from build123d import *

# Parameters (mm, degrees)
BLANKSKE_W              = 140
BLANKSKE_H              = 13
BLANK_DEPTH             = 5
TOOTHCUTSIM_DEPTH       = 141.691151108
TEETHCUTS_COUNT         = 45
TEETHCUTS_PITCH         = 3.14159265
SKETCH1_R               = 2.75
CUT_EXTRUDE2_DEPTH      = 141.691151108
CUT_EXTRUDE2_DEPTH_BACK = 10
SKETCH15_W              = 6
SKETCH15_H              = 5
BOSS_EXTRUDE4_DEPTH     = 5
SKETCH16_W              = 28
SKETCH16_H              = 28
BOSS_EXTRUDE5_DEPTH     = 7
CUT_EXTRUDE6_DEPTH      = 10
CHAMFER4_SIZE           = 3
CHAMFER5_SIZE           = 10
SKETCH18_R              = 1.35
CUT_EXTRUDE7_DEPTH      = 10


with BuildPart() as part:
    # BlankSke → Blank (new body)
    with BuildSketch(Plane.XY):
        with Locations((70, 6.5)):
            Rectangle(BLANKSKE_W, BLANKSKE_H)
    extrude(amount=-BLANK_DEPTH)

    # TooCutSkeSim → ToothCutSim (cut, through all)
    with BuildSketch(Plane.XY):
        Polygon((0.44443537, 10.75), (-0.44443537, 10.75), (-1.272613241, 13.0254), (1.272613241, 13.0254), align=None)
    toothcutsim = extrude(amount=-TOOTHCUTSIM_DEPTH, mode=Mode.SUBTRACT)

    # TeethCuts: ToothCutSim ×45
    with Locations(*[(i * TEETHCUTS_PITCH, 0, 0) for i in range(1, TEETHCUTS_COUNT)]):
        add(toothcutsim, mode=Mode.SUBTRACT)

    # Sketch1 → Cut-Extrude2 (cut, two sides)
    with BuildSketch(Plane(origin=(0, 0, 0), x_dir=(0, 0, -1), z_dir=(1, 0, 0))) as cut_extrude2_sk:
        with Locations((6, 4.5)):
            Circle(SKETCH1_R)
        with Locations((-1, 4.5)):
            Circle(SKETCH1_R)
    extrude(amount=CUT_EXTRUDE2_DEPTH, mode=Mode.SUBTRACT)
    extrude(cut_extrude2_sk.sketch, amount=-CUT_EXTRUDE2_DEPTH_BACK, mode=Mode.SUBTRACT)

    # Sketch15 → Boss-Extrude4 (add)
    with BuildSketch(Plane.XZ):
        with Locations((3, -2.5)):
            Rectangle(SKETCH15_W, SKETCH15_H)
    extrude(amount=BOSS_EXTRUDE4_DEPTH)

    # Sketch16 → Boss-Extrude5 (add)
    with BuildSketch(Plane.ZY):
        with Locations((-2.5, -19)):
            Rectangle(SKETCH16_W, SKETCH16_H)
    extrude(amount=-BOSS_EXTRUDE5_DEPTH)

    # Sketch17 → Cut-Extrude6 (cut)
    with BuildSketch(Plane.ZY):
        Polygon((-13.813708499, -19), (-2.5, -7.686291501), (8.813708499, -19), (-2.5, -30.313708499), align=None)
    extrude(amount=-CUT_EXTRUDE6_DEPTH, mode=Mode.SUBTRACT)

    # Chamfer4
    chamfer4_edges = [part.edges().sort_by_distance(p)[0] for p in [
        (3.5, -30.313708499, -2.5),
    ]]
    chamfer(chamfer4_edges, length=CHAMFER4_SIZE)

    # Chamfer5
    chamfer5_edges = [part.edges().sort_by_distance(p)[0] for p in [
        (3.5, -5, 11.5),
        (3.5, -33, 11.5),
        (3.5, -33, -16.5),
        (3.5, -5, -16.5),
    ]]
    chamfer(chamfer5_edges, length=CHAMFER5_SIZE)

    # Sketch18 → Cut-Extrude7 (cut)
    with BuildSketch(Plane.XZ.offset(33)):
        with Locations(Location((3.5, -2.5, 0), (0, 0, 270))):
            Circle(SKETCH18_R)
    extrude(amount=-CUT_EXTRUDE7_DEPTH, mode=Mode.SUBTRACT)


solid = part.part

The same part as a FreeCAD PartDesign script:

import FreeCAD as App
import Part
import Sketcher
from FreeCAD import Vector
Q = App.Units.Quantity


def edges_at(feature, points):
    """Names of the edges that pass closest to the given points."""
    edges = feature.Shape.Edges
    near = lambda p: min(range(len(edges)), key=lambda i: edges[i].distToShape(Part.Vertex(*p))[0])
    return sorted({f"Edge{near(p) + 1}" for p in points})


def add_polygon(sketch, points):
    """Adds a closed chain of lines whose ends are joined by coincident constraints."""
    first, n = sketch.GeometryCount, len(points)
    for a, b in zip(points, points[1:] + points[:1]):
        sketch.addGeometry(Part.LineSegment(App.Vector(*a, 0), App.Vector(*b, 0)), False)
    for i in range(n):
        sketch.addConstraint(Sketcher.Constraint("Coincident", first + i, 2, first + (i + 1) % n, 1))

doc = App.newDocument("Part")
body = doc.addObject("PartDesign::Body", "Body")

# Sketch on XY plane
sketch1 = body.newObject("Sketcher::SketchObject", "Sketch")
sketch1.AttachmentSupport = (doc.getObject("XY_Plane"), [""])
sketch1.MapMode = "FlatFace"
add_polygon(sketch1, [(0, 13), (0, 0), (140, 0), (140, 13)])  # lines 0-3
sketch1.addConstraint(Sketcher.Constraint("Vertical", 0))
sketch1.addConstraint(Sketcher.Constraint("Horizontal", 1))
sketch1.addConstraint(Sketcher.Constraint("Vertical", 2))
sketch1.addConstraint(Sketcher.Constraint("Horizontal", 3))
sketch1.addConstraint(Sketcher.Constraint("Coincident", 0, 2, -1, 1))
sketch1.addConstraint(Sketcher.Constraint("DistanceX", 1, 1, 1, 2, 140.0))
sketch1.addConstraint(Sketcher.Constraint("DistanceY", 0, 2, 0, 1, 13.0))
pad1 = body.newObject("PartDesign::Pad", "Pad")
pad1.Profile = sketch1
pad1.Length = 5
pad1.Reversed = True

# Sketch on XY plane
sketch2 = body.newObject("Sketcher::SketchObject", "Sketch001")
sketch2.AttachmentSupport = (doc.getObject("XY_Plane"), [""])
sketch2.MapMode = "FlatFace"
add_polygon(sketch2, [(-0.4, 10.8), (0.4, 10.8), (1.3, 13), (-1.3, 13)])  # lines 0-3
sketch2.addConstraint(Sketcher.Constraint("Horizontal", 0))
sketch2.addConstraint(Sketcher.Constraint("Horizontal", 2))
sketch2.addConstraint(Sketcher.Constraint("Equal", 1, 3))
sketch2.addConstraint(Sketcher.Constraint("Angle", 1, Q("70 deg")))
sketch2.addConstraint(Sketcher.Constraint("DistanceY", -1, 1, 0, 2, 10.75))
sketch2.addConstraint(Sketcher.Constraint("DistanceX", 0, 1, 0, 2, 0.888871))
sketch2.addConstraint(Sketcher.Constraint("DistanceY", -1, 1, 1, 2, 13.0254))
sketch2.addConstraint(Sketcher.Constraint("DistanceX", -1, 1, 0, 2, 0.444435))
pocket1 = body.newObject("PartDesign::Pocket", "Pocket")
pocket1.Profile = sketch2
pocket1.Type = "ThroughAll"
doc.recompute()

linearpattern = body.newObject("PartDesign::LinearPattern", "LinearPattern")
linearpattern.Originals = [pocket1]
linearpattern.Direction = (doc.getObject("X_Axis"), [""])
linearpattern.Mode = "offset"
linearpattern.Offset = 3.141593
linearpattern.Occurrences = 45
body.Tip = linearpattern

# Sketch on YZ plane
sketch3 = body.newObject("Sketcher::SketchObject", "Sketch002")
sketch3.AttachmentSupport = (doc.getObject("YZ_Plane"), [""])
sketch3.MapMode = "FlatFace"
sketch3.addGeometry(Part.Circle(Vector(4.5, -6, 0), Vector(0, 0, 1), 2.8), False)
sketch3.addGeometry(Part.Circle(Vector(4.5, 1, 0), Vector(0, 0, 1), 2.8), False)
sketch3.addConstraint(Sketcher.Constraint("Equal", 0, 1))
sketch3.addConstraint(Sketcher.Constraint("Vertical", 0, 3, 1, 3))
sketch3.addConstraint(Sketcher.Constraint("Diameter", 0, 5.5))
sketch3.addConstraint(Sketcher.Constraint("DistanceY", 0, 3, -1, 1, 6.0))
sketch3.addConstraint(Sketcher.Constraint("DistanceY", -1, 1, 1, 3, 1.0))
sketch3.addConstraint(Sketcher.Constraint("DistanceX", -1, 1, 0, 3, 4.5))
pocket2 = body.newObject("PartDesign::Pocket", "Pocket001")
pocket2.Profile = sketch3
pocket2.Type = "ThroughAll"
pocket2.Midplane = True

# Sketch on XZ plane
sketch4 = body.newObject("Sketcher::SketchObject", "Sketch003")
sketch4.AttachmentSupport = (doc.getObject("XZ_Plane"), [""])
sketch4.MapMode = "FlatFace"
add_polygon(sketch4, [(0, 0), (0, -5), (6, -5), (6, 0)])  # lines 0-3
sketch4.addConstraint(Sketcher.Constraint("Vertical", 0))
sketch4.addConstraint(Sketcher.Constraint("Horizontal", 1))
sketch4.addConstraint(Sketcher.Constraint("Vertical", 2))
sketch4.addConstraint(Sketcher.Constraint("Horizontal", 3))
sketch4.addConstraint(Sketcher.Constraint("Coincident", 3, 2, -1, 1))
sketch4.addConstraint(Sketcher.Constraint("DistanceX", 1, 1, 1, 2, 6.0))
sketch4.addConstraint(Sketcher.Constraint("DistanceY", 0, 2, 0, 1, 5.0))
pad2 = body.newObject("PartDesign::Pad", "Pad001")
pad2.Profile = sketch4
pad2.Length = 5

# Sketch on YZ plane
sketch5 = body.newObject("Sketcher::SketchObject", "Sketch004")
sketch5.AttachmentSupport = (doc.getObject("YZ_Plane"), [""])
sketch5.MapMode = "FlatFace"
add_polygon(sketch5, [(-5, -16), (-33, -16), (-33, 12), (-5, 12)])  # lines 0-3
sketch5.addConstraint(Sketcher.Constraint("Horizontal", 0))
sketch5.addConstraint(Sketcher.Constraint("Vertical", 1))
sketch5.addConstraint(Sketcher.Constraint("Horizontal", 2))
sketch5.addConstraint(Sketcher.Constraint("Vertical", 3))
sketch5.addConstraint(Sketcher.Constraint("Equal", 2, 1))
sketch5.addConstraint(Sketcher.Constraint("DistanceX", 0, 2, 0, 1, 28.0))
sketch5.addConstraint(Sketcher.Constraint("DistanceX", 0, 2, -1, 1, 33.0))
sketch5.addConstraint(Sketcher.Constraint("DistanceY", 0, 2, -1, 1, 16.5))
pad3 = body.newObject("PartDesign::Pad", "Pad002")
pad3.Profile = sketch5
pad3.Length = 7

# Sketch on YZ plane
sketch6 = body.newObject("Sketcher::SketchObject", "Sketch005")
sketch6.AttachmentSupport = (doc.getObject("YZ_Plane"), [""])
sketch6.MapMode = "FlatFace"
add_polygon(sketch6, [(-8, -2), (-19, -14), (-30, -2), (-19, 9)])  # lines 0-3
sketch6.addConstraint(Sketcher.Constraint("Perpendicular", 0, 1))
sketch6.addConstraint(Sketcher.Constraint("Perpendicular", 1, 2))
sketch6.addConstraint(Sketcher.Constraint("Perpendicular", 2, 3))
sketch6.addConstraint(Sketcher.Constraint("Horizontal", 1, 2, 3, 2))
sketch6.addConstraint(Sketcher.Constraint("Vertical", 0, 2, 2, 2))
sketch6.addConstraint(Sketcher.Constraint("Distance", 0, 16.0))
sketch6.addConstraint(Sketcher.Constraint("DistanceX", 0, 2, -1, 1, 19.0))
sketch6.addConstraint(Sketcher.Constraint("DistanceY", 1, 2, -1, 1, 2.5))
pocket3 = body.newObject("PartDesign::Pocket", "Pocket002")
pocket3.Profile = sketch6
pocket3.Length = 10
pocket3.Reversed = True
doc.recompute()

chamfer = body.newObject("PartDesign::Chamfer", "Chamfer")
chamfer.Base = (pocket3, edges_at(pocket3, [(3.5, -30.314, -2.5)]))
chamfer.Size = 3
doc.recompute()

chamfer2 = body.newObject("PartDesign::Chamfer", "Chamfer001")
chamfer2.Base = (chamfer, edges_at(chamfer, [
    (3.5, -5, 11.5),
    (3.5, -33, 11.5),
    (3.5, -33, -16.5),
    (3.5, -5, -16.5),
]))
chamfer2.Size = 10

# Sketch on XZ plane
sketch7 = body.newObject("Sketcher::SketchObject", "Sketch006")
sketch7.AttachmentSupport = (doc.getObject("XZ_Plane"), [""])
sketch7.MapMode = "FlatFace"
sketch7.AttachmentOffset = App.Placement(Vector(0, 0, 33), App.Rotation())
sketch7.addGeometry(Part.Circle(Vector(3.5, -2.5, 0), Vector(0, 0, 1), 1.4), False)
sketch7.addConstraint(Sketcher.Constraint("Diameter", 0, 2.7))
sketch7.addConstraint(Sketcher.Constraint("DistanceX", -1, 1, 0, 3, 3.5))
sketch7.addConstraint(Sketcher.Constraint("DistanceY", 0, 3, -1, 1, 2.5))
pocket4 = body.newObject("PartDesign::Pocket", "Pocket003")
pocket4.Profile = sketch7
pocket4.Length = 10

doc.recompute()
